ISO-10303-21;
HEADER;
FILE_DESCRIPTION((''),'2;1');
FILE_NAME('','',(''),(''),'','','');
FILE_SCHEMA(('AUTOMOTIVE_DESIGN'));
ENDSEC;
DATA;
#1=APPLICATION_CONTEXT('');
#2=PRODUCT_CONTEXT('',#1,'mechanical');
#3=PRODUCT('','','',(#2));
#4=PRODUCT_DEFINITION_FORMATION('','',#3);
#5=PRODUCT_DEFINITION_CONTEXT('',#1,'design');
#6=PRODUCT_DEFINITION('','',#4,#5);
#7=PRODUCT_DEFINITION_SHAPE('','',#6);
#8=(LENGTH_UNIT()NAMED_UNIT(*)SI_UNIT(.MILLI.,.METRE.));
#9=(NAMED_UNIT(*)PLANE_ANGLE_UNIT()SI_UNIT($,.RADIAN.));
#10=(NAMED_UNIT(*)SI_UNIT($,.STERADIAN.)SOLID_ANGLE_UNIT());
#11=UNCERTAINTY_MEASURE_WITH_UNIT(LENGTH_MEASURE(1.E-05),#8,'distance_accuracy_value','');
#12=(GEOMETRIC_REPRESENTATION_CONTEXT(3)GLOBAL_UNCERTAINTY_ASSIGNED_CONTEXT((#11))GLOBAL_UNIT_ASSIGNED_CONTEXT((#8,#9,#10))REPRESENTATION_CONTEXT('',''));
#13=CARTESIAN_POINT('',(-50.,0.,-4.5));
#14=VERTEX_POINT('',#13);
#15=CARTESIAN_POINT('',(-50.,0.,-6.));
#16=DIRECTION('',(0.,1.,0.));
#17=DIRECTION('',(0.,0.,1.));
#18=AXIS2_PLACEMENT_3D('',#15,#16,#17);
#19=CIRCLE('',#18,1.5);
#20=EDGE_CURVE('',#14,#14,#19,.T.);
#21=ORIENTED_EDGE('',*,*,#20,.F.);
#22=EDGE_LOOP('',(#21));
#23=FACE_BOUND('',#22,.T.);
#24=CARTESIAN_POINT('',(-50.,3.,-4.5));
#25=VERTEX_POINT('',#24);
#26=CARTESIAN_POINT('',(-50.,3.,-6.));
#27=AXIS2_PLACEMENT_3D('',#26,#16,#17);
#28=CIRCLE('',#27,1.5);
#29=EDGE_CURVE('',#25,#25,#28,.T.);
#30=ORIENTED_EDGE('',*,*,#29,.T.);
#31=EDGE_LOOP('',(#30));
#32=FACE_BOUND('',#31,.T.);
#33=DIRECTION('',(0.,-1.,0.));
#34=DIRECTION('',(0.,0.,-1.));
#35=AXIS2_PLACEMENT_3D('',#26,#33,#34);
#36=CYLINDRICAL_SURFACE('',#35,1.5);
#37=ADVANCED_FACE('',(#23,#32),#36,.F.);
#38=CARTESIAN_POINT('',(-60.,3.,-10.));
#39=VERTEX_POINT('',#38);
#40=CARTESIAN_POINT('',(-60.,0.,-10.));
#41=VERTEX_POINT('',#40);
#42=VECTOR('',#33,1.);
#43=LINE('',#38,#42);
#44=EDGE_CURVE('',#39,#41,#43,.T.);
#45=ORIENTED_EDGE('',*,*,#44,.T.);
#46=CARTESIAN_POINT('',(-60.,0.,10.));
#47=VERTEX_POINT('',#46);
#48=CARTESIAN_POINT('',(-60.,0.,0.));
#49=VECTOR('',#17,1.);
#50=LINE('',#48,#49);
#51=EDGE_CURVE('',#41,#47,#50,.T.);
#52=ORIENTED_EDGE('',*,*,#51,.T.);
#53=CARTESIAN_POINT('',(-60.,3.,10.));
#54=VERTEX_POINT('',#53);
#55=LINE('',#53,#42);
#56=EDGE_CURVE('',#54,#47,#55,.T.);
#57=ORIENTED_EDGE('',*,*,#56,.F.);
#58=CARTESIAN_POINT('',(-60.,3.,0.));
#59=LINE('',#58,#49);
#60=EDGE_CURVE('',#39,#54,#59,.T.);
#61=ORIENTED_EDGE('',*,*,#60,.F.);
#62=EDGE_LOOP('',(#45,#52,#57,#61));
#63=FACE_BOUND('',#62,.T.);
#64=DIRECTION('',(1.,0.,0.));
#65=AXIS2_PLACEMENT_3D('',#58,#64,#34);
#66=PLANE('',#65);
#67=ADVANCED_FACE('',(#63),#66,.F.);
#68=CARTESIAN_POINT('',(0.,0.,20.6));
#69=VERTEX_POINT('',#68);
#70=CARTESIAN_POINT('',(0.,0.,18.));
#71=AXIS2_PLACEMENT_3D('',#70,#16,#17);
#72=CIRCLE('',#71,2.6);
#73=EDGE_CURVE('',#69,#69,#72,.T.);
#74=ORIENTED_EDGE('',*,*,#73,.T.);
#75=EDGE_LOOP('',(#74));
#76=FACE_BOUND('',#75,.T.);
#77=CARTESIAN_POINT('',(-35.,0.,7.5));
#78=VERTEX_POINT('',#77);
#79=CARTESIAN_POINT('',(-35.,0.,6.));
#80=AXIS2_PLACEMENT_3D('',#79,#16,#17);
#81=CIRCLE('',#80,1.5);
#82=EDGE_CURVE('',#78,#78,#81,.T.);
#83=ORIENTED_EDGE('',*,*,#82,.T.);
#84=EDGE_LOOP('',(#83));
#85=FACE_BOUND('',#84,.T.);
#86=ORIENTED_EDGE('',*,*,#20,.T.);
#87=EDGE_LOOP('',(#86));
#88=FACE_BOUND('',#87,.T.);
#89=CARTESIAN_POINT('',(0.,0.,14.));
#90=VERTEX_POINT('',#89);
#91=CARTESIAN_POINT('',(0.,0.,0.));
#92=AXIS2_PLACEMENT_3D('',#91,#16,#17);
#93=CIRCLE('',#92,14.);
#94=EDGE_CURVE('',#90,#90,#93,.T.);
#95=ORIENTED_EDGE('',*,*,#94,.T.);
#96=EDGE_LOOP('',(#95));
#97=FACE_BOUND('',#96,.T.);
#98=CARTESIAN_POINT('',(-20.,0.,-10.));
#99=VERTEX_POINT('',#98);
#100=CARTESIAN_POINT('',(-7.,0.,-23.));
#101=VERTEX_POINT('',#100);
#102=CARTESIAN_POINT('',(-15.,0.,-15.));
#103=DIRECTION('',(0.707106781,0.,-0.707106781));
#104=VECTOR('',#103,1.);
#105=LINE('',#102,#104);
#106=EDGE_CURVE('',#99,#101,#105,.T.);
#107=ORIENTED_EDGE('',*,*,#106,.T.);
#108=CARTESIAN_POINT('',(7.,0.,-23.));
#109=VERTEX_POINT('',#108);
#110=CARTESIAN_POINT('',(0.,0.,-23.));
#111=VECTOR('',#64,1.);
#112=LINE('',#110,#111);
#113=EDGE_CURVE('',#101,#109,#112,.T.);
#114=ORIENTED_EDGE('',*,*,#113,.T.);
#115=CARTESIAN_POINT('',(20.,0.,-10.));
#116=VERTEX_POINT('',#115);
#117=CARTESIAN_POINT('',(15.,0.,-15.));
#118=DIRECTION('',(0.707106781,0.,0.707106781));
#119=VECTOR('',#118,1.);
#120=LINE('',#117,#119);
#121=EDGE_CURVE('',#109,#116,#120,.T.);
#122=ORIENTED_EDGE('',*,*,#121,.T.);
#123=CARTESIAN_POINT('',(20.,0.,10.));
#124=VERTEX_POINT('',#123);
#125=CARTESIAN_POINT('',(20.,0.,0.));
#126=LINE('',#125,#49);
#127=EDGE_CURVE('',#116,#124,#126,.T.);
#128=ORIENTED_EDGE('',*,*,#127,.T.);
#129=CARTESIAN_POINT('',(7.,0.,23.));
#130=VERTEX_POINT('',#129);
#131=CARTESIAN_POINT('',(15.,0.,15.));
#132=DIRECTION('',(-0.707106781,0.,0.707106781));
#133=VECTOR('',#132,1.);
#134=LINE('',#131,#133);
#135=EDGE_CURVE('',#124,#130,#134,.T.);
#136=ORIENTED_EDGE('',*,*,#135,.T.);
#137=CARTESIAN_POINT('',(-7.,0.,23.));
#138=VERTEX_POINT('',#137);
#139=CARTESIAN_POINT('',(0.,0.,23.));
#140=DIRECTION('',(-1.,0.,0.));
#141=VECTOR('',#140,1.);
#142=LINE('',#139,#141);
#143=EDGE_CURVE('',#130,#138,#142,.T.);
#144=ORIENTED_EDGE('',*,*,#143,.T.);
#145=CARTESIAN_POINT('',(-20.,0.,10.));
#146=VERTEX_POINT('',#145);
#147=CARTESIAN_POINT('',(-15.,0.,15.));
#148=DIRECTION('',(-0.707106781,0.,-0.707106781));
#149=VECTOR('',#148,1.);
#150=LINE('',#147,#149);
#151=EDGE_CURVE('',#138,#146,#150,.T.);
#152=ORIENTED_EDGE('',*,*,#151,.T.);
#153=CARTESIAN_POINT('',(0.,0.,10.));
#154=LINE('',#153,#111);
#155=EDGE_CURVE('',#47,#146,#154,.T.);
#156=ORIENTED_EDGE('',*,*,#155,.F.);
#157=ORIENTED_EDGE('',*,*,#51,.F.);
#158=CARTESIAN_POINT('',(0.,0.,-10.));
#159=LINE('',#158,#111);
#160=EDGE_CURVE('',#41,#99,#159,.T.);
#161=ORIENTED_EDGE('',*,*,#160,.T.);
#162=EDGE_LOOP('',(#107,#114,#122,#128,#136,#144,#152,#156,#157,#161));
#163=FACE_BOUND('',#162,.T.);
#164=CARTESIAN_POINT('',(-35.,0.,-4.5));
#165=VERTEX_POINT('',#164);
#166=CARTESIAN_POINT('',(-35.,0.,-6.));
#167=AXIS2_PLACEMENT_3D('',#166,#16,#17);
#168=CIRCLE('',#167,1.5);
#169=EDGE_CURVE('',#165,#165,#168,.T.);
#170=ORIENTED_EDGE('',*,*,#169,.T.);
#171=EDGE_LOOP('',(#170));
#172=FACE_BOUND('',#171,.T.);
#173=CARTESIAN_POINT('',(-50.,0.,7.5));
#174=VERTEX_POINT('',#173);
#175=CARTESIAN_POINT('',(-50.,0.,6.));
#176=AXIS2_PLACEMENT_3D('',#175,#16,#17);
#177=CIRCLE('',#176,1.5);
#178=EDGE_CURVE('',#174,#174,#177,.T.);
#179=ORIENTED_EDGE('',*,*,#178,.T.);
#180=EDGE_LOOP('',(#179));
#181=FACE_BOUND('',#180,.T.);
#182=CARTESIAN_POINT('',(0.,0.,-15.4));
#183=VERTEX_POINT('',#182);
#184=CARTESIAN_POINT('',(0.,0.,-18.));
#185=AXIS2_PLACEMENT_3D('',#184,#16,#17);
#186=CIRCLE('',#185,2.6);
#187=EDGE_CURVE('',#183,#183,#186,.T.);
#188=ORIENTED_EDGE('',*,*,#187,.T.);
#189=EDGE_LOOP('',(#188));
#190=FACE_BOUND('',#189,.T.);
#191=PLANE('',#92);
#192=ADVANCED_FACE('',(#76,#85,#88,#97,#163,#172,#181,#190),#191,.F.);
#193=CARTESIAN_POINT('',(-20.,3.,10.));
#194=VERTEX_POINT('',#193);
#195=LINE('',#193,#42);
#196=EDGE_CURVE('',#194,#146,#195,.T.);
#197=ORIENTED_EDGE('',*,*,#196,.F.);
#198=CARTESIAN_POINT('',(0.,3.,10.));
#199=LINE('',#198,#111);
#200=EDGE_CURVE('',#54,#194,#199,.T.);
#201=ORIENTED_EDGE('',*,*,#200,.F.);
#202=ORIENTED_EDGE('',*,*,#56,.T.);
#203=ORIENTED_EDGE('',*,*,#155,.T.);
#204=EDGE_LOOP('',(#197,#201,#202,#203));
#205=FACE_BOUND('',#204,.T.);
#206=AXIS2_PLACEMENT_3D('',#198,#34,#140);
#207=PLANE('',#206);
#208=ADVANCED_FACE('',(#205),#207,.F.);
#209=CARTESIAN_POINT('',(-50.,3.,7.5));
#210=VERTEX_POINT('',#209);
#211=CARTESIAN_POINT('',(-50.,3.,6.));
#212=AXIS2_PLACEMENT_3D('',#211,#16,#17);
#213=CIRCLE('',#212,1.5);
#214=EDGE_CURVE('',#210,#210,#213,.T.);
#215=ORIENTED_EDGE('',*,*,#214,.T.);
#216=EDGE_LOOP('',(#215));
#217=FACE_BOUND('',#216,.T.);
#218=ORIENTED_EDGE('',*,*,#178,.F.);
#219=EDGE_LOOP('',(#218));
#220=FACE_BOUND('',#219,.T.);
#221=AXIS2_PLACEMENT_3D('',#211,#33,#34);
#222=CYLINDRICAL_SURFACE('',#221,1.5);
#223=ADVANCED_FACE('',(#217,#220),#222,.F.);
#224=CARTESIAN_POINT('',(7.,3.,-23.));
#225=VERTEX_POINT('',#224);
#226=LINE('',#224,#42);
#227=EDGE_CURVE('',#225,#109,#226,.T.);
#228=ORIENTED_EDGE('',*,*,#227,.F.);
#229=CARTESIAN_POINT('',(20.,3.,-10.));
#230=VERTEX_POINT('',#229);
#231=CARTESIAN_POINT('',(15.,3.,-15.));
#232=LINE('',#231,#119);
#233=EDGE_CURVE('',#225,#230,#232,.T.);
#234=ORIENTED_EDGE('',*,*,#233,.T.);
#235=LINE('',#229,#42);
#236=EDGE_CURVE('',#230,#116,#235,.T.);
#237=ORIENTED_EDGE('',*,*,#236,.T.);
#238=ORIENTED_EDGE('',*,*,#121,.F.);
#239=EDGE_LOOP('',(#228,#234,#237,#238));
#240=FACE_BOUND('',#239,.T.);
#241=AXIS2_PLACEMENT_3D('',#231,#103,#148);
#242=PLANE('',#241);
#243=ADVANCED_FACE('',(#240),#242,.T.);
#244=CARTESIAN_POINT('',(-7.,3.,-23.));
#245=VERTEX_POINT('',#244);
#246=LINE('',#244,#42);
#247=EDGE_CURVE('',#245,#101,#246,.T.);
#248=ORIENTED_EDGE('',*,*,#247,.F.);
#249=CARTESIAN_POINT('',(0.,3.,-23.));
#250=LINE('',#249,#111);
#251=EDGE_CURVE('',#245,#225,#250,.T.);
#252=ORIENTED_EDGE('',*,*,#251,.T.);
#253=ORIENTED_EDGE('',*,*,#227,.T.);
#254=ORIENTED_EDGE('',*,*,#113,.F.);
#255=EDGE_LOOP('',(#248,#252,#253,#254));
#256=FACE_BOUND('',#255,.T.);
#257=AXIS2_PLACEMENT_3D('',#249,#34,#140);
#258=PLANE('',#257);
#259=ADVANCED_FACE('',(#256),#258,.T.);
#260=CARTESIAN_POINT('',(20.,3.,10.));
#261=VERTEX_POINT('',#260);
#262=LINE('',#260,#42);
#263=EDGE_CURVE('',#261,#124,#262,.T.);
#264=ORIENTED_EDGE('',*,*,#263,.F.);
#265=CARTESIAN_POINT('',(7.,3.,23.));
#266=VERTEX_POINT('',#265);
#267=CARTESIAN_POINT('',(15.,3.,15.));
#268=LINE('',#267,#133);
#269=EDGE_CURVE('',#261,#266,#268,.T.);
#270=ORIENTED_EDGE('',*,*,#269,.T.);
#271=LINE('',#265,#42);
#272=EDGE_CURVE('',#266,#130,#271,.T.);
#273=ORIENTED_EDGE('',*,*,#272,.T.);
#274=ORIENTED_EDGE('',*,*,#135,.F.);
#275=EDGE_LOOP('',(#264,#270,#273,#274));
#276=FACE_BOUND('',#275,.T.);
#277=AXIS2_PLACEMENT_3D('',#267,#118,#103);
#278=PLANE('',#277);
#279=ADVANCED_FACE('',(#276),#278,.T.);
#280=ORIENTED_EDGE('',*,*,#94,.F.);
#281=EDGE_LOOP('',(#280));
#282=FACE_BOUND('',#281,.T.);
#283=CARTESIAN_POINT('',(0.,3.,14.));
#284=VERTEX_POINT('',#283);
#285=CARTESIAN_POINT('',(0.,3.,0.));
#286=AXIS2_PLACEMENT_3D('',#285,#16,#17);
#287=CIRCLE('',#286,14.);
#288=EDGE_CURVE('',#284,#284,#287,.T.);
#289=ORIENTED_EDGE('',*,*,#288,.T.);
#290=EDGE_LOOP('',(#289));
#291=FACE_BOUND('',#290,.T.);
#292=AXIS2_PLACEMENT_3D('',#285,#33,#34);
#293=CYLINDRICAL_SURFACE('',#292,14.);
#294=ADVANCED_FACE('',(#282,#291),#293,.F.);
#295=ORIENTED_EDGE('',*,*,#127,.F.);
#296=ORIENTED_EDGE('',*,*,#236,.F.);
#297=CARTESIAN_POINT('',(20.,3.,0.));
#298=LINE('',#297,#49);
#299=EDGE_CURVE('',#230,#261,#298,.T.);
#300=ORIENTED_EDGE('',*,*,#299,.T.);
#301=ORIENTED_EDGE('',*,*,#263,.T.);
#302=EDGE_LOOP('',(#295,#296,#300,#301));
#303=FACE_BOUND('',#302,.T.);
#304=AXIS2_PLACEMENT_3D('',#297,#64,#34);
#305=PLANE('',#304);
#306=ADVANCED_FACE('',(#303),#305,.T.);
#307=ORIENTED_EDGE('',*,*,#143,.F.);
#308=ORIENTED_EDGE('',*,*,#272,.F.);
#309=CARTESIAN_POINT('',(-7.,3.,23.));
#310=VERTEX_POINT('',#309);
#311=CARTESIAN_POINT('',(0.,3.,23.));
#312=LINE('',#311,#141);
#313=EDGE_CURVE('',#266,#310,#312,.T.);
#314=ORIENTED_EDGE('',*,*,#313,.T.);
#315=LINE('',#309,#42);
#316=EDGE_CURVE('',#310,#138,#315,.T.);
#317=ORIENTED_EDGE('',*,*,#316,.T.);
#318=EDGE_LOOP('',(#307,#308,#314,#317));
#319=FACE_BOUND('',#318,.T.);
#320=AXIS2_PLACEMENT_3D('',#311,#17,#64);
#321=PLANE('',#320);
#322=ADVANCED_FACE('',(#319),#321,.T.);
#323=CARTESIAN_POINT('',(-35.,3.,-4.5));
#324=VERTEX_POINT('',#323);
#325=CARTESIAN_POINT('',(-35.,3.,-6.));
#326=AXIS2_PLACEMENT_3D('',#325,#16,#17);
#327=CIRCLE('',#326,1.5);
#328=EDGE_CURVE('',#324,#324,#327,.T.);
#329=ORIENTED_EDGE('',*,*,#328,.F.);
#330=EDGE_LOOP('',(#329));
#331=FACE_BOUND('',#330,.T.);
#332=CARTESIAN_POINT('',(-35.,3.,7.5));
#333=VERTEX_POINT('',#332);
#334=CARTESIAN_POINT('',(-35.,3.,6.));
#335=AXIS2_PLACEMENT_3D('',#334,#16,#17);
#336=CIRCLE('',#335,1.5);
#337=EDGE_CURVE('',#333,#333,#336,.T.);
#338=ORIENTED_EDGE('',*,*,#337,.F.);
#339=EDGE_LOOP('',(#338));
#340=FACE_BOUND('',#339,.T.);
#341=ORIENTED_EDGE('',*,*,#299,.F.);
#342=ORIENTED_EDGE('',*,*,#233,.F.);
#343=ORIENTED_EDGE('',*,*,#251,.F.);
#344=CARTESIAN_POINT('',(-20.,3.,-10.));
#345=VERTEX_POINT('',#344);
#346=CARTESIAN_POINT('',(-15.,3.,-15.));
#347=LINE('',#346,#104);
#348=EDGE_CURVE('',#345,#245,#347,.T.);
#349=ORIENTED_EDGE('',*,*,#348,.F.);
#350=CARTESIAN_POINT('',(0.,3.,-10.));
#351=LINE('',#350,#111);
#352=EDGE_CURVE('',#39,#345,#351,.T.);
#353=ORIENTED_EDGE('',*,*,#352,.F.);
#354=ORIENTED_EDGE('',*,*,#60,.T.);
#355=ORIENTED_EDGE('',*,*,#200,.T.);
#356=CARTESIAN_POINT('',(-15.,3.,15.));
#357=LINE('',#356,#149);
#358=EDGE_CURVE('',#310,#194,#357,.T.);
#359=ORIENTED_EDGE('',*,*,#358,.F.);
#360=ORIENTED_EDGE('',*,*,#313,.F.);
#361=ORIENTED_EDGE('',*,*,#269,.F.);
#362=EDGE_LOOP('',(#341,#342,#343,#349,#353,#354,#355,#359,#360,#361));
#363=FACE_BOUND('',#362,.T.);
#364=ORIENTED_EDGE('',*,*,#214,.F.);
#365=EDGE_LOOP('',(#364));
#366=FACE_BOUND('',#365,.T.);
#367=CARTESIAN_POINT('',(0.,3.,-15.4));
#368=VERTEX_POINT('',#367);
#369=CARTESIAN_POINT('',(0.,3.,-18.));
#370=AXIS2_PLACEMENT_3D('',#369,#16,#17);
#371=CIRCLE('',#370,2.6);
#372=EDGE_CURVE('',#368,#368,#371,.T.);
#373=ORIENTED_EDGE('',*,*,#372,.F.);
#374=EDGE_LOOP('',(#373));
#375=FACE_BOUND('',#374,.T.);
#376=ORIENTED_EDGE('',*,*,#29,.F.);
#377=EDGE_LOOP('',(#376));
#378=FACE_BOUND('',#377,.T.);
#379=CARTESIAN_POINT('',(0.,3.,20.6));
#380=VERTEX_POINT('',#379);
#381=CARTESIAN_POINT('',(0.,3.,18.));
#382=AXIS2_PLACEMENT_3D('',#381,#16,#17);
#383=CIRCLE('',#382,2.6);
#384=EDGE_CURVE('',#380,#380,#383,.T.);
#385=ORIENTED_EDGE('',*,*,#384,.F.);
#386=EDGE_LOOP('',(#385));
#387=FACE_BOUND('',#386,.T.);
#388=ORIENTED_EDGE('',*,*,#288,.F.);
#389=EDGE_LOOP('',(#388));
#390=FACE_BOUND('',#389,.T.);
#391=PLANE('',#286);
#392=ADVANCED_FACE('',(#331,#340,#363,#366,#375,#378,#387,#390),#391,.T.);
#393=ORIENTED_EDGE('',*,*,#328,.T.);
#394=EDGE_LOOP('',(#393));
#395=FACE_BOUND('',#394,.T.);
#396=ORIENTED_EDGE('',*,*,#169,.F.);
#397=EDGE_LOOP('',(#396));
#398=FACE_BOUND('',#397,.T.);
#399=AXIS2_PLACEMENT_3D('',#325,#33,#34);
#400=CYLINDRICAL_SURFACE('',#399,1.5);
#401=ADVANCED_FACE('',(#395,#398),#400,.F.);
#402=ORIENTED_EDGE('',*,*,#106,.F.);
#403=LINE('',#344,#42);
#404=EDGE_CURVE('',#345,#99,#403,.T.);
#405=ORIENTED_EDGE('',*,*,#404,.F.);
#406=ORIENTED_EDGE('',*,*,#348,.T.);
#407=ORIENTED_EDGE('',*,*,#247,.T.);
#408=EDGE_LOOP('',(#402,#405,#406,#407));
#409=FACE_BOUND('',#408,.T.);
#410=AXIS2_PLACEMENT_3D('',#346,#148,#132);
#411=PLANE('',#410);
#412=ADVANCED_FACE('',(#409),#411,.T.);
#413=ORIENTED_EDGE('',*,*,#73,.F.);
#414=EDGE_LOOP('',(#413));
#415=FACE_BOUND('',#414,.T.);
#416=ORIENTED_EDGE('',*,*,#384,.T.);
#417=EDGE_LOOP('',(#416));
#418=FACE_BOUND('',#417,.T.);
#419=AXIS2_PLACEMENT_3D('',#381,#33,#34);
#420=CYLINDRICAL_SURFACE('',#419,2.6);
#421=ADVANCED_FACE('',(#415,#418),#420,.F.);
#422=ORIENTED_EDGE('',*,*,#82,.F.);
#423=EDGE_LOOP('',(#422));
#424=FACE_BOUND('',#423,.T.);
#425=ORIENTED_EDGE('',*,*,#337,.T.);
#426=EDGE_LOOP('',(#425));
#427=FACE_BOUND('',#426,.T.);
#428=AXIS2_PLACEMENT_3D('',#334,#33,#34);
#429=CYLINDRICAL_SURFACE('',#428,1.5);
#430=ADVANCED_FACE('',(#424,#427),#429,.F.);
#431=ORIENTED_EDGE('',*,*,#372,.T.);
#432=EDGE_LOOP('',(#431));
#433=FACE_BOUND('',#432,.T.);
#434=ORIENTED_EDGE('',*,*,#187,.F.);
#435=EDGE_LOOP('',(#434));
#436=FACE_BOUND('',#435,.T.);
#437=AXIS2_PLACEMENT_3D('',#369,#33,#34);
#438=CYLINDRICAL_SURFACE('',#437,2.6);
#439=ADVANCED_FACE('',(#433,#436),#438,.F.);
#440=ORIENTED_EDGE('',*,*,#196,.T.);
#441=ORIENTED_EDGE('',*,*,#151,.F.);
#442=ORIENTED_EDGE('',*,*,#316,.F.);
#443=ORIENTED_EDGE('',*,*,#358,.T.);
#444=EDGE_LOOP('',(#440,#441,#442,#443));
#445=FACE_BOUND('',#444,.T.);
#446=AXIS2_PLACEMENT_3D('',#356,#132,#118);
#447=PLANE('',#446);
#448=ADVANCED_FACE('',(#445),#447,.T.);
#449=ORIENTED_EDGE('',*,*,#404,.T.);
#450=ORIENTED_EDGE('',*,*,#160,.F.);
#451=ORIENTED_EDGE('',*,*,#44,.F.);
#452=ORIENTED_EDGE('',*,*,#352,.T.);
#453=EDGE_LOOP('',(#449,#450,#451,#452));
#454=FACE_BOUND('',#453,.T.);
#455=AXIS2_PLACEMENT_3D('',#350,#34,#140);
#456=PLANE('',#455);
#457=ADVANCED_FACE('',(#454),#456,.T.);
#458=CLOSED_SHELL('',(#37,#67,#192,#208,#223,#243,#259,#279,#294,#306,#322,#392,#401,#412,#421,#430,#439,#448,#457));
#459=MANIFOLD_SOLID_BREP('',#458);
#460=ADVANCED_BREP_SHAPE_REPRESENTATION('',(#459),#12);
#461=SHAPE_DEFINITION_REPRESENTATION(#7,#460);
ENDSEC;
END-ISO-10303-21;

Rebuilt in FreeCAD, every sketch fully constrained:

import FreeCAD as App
import Part
import Sketcher
from FreeCAD import Vector
Q = App.Units.Quantity

doc = App.newDocument("Part")
params = doc.addObject("Spreadsheet::Sheet", "Params")
for row, (alias, value) in enumerate([
    ("sketch1_diameter", "3 mm"),
    ("sketch1_diameter2", "28 mm"),
    ("sketch1_diameter3", "5.2 mm"),
    ("sketch1_width", "40 mm"),
    ("sketch1_width2", "14 mm"),
    ("pad1_length", "3 mm"),
], start=1):
    params.set(f"A{row}", alias)
    params.set(f"B{row}", "=" + value)
    params.setAlias(f"B{row}", alias)

body = doc.addObject("PartDesign::Body", "Body")

# Sketch on XZ plane
sketch1 = body.newObject("Sketcher::SketchObject", "Sketch")
sketch1.AttachmentSupport = (doc.getObject("XZ_Plane"), [""])
sketch1.MapMode = "FlatFace"
sketch1.addGeometry([
    Part.LineSegment(Vector(-20, -10, 0), Vector(-60, -10, 0)),  # 0
    Part.LineSegment(Vector(-60, -10, 0), Vector(-60, 10, 0)),  # 1
    Part.LineSegment(Vector(-60, 10, 0), Vector(-20, 10, 0)),  # 2
    Part.LineSegment(Vector(-20, 10, 0), Vector(-7, 23, 0)),  # 3
    Part.LineSegment(Vector(-7, 23, 0), Vector(7, 23, 0)),  # 4
    Part.LineSegment(Vector(7, 23, 0), Vector(20, 10, 0)),  # 5
    Part.LineSegment(Vector(20, 10, 0), Vector(20, -10, 0)),  # 6
    Part.LineSegment(Vector(20, -10, 0), Vector(7, -23, 0)),  # 7
    Part.LineSegment(Vector(7, -23, 0), Vector(-7, -23, 0)),  # 8
    Part.LineSegment(Vector(-7, -23, 0), Vector(-20, -10, 0)),  # 9
    Part.Circle(Vector(0, 18, 0), Vector(0, 0, 1), 2.6),  # 10
    Part.Circle(Vector(-35, 6, 0), Vector(0, 0, 1), 1.5),  # 11
    Part.Circle(Vector(-50, 6, 0), Vector(0, 0, 1), 1.5),  # 12
    Part.Circle(Vector(0, 0, 0), Vector(0, 0, 1), 14),  # 13
    Part.Circle(Vector(0, -18, 0), Vector(0, 0, 1), 2.6),  # 14
    Part.Circle(Vector(-35, -6, 0), Vector(0, 0, 1), 1.5),  # 15
    Part.Circle(Vector(-50, -6, 0), Vector(0, 0, 1), 1.5),  # 16
], False)
sketch1.addConstraint([
    Sketcher.Constraint("Coincident", 0, 2, 1, 1),
    Sketcher.Constraint("Coincident", 1, 2, 2, 1),
    Sketcher.Constraint("Coincident", 2, 2, 3, 1),
    Sketcher.Constraint("Coincident", 3, 2, 4, 1),
    Sketcher.Constraint("Coincident", 4, 2, 5, 1),
    Sketcher.Constraint("Coincident", 5, 2, 6, 1),
    Sketcher.Constraint("Coincident", 6, 2, 7, 1),
    Sketcher.Constraint("Coincident", 7, 2, 8, 1),
    Sketcher.Constraint("Coincident", 8, 2, 9, 1),
    Sketcher.Constraint("Coincident", 9, 2, 0, 1),
    Sketcher.Constraint("Horizontal", 0),
    Sketcher.Constraint("Vertical", 1),
    Sketcher.Constraint("Horizontal", 2),
    Sketcher.Constraint("Horizontal", 4),
    Sketcher.Constraint("Vertical", 6),
    Sketcher.Constraint("Horizontal", 8),
    Sketcher.Constraint("Coincident", 13, 3, -1, 1),
    Sketcher.Constraint("Equal", 11, 12),
    Sketcher.Constraint("Equal", 10, 14),
    Sketcher.Constraint("Equal", 12, 15),
    Sketcher.Constraint("Equal", 15, 16),
    Sketcher.Constraint("Symmetric", 10, 3, 14, 3, -1, 1),
    Sketcher.Constraint("Symmetric", 2, 2, 6, 2, -1, 1),
    Sketcher.Constraint("Symmetric", 3, 2, 7, 2, -1, 1),
    Sketcher.Constraint("Symmetric", 5, 2, 9, 2, -1, 1),
    Sketcher.Constraint("Symmetric", 11, 3, 15, 3, -1),
    Sketcher.Constraint("Symmetric", 12, 3, 16, 3, -1),
    Sketcher.Constraint("PointOnObject", 10, 3, -2),
    Sketcher.Constraint("Perpendicular", 3, 5),
    Sketcher.Constraint("Perpendicular", 7, 9),
    Sketcher.Constraint("Horizontal", 11, 3, 12, 3),
    Sketcher.Constraint("Horizontal", 2, 2, 5, 2),
    Sketcher.Constraint("Vertical", 4, 2, 7, 2),
    Sketcher.Constraint("Diameter", 11, Q("3 mm")),
    Sketcher.Constraint("Diameter", 13, Q("28 mm")),
    Sketcher.Constraint("Diameter", 10, Q("5.2 mm")),
    Sketcher.Constraint("DistanceX", 0, 2, 0, 1, Q("40 mm")),
    Sketcher.Constraint("DistanceX", 4, 1, 4, 2, Q("14 mm")),
    Sketcher.Constraint("DistanceY", 1, 1, 1, 2, Q("20 mm")),
    Sketcher.Constraint("DistanceY", -1, 1, 10, 3, Q("18 mm")),
    Sketcher.Constraint("DistanceX", 11, 3, -1, 1, Q("35 mm")),
    Sketcher.Constraint("DistanceY", -1, 1, 11, 3, Q("6 mm")),
    Sketcher.Constraint("DistanceX", 12, 3, -1, 1, Q("50 mm")),
    Sketcher.Constraint("DistanceX", 0, 2, -1, 1, Q("60 mm")),
])
sketch1.setExpression("Constraints[33]", "Params.sketch1_diameter")
sketch1.setExpression("Constraints[34]", "Params.sketch1_diameter2")
sketch1.setExpression("Constraints[35]", "Params.sketch1_diameter3")
sketch1.setExpression("Constraints[36]", "Params.sketch1_width")
sketch1.setExpression("Constraints[37]", "Params.sketch1_width2")
pad1 = body.newObject("PartDesign::Pad", "Pad")
pad1.Profile = sketch1
pad1.setExpression("Length", "Params.pad1_length")
pad1.Reversed = True

doc.recompute()
